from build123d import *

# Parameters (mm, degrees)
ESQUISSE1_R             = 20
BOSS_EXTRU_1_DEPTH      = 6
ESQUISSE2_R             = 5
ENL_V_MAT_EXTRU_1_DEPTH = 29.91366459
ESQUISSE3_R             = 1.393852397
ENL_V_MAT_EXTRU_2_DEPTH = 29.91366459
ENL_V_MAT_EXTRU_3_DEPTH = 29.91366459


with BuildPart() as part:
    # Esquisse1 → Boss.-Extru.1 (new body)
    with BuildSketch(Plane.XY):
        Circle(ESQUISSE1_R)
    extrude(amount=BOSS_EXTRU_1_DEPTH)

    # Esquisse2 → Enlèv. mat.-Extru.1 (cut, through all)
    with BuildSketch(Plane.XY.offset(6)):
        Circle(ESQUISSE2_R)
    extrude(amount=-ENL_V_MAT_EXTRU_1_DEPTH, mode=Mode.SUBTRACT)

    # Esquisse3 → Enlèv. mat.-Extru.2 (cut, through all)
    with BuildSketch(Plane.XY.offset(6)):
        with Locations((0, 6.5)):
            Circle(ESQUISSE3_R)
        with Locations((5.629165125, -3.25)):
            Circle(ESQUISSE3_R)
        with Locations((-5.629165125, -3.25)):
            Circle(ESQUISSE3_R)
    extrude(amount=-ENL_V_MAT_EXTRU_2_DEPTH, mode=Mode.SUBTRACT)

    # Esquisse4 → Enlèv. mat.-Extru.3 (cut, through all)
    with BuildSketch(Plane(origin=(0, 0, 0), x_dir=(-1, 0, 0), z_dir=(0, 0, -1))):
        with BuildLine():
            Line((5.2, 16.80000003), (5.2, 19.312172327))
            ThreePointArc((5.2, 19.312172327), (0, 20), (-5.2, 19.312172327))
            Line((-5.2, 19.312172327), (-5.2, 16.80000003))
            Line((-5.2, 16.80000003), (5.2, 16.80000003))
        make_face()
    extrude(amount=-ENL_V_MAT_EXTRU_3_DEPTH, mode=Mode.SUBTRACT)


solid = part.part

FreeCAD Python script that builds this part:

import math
import FreeCAD as App
import Part
import Sketcher
from FreeCAD import Vector

doc = App.newDocument("Part")
body = doc.addObject("PartDesign::Body", "Body")

sketch1 = doc.addObject("Sketcher::SketchObject", "Sketch")
body.addObject(sketch1)
sketch1.AttachmentSupport = (doc.XY_Plane, [""])
sketch1.MapMode = "FlatFace"
sketch1.addGeometry(Part.Circle(Vector(0, 0, 0), Vector(0, 0, 1), 20), False)
sketch1.addConstraint(Sketcher.Constraint("Coincident", 0, 3, -1, 1))
sketch1.addConstraint(Sketcher.Constraint("Diameter", 0, 40.0))
pad1 = doc.addObject("PartDesign::Pad", "Pad")
body.addObject(pad1)
pad1.Profile = sketch1
pad1.Length = 6

sketch2 = doc.addObject("Sketcher::SketchObject", "Sketch001")
body.addObject(sketch2)
sketch2.AttachmentSupport = (doc.XY_Plane, [""])
sketch2.MapMode = "FlatFace"
sketch2.AttachmentOffset = App.Placement(Vector(0, 0, 6), App.Rotation())
sketch2.addGeometry(Part.Circle(Vector(0, 0, 0), Vector(0, 0, 1), 5), False)
sketch2.addConstraint(Sketcher.Constraint("Coincident", 0, 3, -1, 1))
sketch2.addConstraint(Sketcher.Constraint("Diameter", 0, 10.0))
pocket1 = doc.addObject("PartDesign::Pocket", "Pocket")
body.addObject(pocket1)
pocket1.Profile = sketch2
pocket1.Type = "ThroughAll"

sketch3 = doc.addObject("Sketcher::SketchObject", "Sketch002")
body.addObject(sketch3)
sketch3.AttachmentSupport = (doc.XY_Plane, [""])
sketch3.MapMode = "FlatFace"
sketch3.AttachmentOffset = App.Placement(Vector(0, 0, 6), App.Rotation())
sketch3.addGeometry(Part.Circle(Vector(0, 6.5, 0), Vector(0, 0, 1), 1.4), False)
sketch3.addGeometry(Part.Circle(Vector(5.6, -3.2, 0), Vector(0, 0, 1), 1.4), False)
sketch3.addGeometry(Part.Circle(Vector(-5.6, -3.2, 0), Vector(0, 0, 1), 1.4), False)
sketch3.addConstraint(Sketcher.Constraint("Equal", 0, 1))
sketch3.addConstraint(Sketcher.Constraint("Equal", 1, 2))
sketch3.addConstraint(Sketcher.Constraint("Symmetric", 1, 3, 2, 3, -2))
sketch3.addConstraint(Sketcher.Constraint("PointOnObject", 0, 3, -2))
sketch3.addConstraint(Sketcher.Constraint("DistanceY", -1, 1, 0, 3, 6.5))
sketch3.addConstraint(Sketcher.Constraint("DistanceY", 1, 3, -1, 1, 3.25))
sketch3.addConstraint(Sketcher.Constraint("Diameter", 0, 2.787705))
sketch3.addConstraint(Sketcher.Constraint("DistanceX", 2, 3, 1, 3, 11.25833))
pocket2 = doc.addObject("PartDesign::Pocket", "Pocket001")
body.addObject(pocket2)
pocket2.Profile = sketch3
pocket2.Type = "ThroughAll"

sketch4 = doc.addObject("Sketcher::SketchObject", "Sketch003")
body.addObject(sketch4)
sketch4.AttachmentSupport = (doc.XY_Plane, [""])
sketch4.MapMode = "FlatFace"
sketch4.addGeometry(Part.LineSegment(Vector(-5.2, 16.8, 0), Vector(-5.2, 19.3, 0)), False)
sketch4.addGeometry(Part.ArcOfCircle(Part.Circle(Vector(0, 0, 0), Vector(0, 0, 1), 20), math.radians(75), math.radians(105)), False)
sketch4.addGeometry(Part.LineSegment(Vector(5.2, 19.3, 0), Vector(5.2, 16.8, 0)), False)
sketch4.addGeometry(Part.LineSegment(Vector(5.2, 16.8, 0), Vector(-5.2, 16.8, 0)), False)
sketch4.addConstraint(Sketcher.Constraint("Coincident", 0, 2, 1, 2))
sketch4.addConstraint(Sketcher.Constraint("Coincident", 1, 1, 2, 1))
sketch4.addConstraint(Sketcher.Constraint("Coincident", 2, 2, 3, 1))
sketch4.addConstraint(Sketcher.Constraint("Coincident", 3, 2, 0, 1))
sketch4.addConstraint(Sketcher.Constraint("Vertical", 0))
sketch4.addConstraint(Sketcher.Constraint("Vertical", 2))
sketch4.addConstraint(Sketcher.Constraint("Horizontal", 3))
sketch4.addConstraint(Sketcher.Constraint("Coincident", 1, 3, -1, 1))
sketch4.addConstraint(Sketcher.Constraint("Horizontal", 0, 2, 1, 1))
sketch4.addConstraint(Sketcher.Constraint("Radius", 1, 20.0))
sketch4.addConstraint(Sketcher.Constraint("DistanceX", 3, 2, 3, 1, 10.4))
sketch4.addConstraint(Sketcher.Constraint("DistanceY", -1, 1, 2, 2, 16.8))
pocket3 = doc.addObject("PartDesign::Pocket", "Pocket002")
body.addObject(pocket3)
pocket3.Profile = sketch4
pocket3.Type = "ThroughAll"
pocket3.Reversed = True

doc.recompute()
